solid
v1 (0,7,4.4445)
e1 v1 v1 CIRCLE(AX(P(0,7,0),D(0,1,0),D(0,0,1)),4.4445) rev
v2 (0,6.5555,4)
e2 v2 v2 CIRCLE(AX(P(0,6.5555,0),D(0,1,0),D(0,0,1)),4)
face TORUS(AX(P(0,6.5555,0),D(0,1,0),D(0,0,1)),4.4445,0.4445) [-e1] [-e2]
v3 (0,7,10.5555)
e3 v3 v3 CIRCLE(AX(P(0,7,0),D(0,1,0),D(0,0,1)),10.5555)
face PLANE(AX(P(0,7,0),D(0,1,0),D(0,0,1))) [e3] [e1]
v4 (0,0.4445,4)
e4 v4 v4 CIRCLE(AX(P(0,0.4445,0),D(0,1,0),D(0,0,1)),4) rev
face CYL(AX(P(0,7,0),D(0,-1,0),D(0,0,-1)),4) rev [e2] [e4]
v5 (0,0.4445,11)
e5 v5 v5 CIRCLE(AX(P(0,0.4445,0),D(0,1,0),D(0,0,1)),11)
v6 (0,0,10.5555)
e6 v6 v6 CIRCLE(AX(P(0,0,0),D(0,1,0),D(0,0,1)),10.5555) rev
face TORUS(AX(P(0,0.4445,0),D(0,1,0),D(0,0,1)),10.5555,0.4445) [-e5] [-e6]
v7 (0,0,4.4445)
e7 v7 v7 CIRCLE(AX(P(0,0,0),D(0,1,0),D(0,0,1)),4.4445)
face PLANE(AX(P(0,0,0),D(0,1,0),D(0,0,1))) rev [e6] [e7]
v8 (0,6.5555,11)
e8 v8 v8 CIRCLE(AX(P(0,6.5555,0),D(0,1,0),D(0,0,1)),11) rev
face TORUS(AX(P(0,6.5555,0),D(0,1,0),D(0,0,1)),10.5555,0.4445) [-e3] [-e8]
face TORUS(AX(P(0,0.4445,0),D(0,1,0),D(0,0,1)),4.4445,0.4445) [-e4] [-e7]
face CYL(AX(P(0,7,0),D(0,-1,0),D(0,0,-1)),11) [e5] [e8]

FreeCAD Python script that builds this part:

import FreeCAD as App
import Part
import Sketcher

V = App.Vector


def edges_at(feature, points):
    """Names of the edges that pass closest to the given points."""
    edges = feature.Shape.Edges
    near = lambda p: min(range(len(edges)), key=lambda i: edges[i].distToShape(Part.Vertex(*p))[0])
    return sorted({f"Edge{near(p) + 1}" for p in points})

doc = App.newDocument("Part")
body = doc.addObject("PartDesign::Body", "Body")

sketch1 = body.newObject("Sketcher::SketchObject", "Sketch")
sketch1.AttachmentSupport = (doc.getObject("XZ_Plane"), [""])
sketch1.MapMode = "FlatFace"
sketch1.addGeometry(Part.Circle(V(0, 0, 0), V(0, 0, 1), 11), False)
sketch1.addGeometry(Part.Circle(V(0, 0, 0), V(0, 0, 1), 4), False)
sketch1.addConstraint(Sketcher.Constraint("Coincident", 0, 3, -1, 1))
sketch1.addConstraint(Sketcher.Constraint("Coincident", 1, 3, -1, 1))
sketch1.addConstraint(Sketcher.Constraint("Diameter", 0, 22.0))
sketch1.addConstraint(Sketcher.Constraint("Diameter", 1, 8.0))
pad1 = body.newObject("PartDesign::Pad", "Pad")
pad1.Profile = sketch1
pad1.Length = 7
pad1.Reversed = True
doc.recompute()

fillet = body.newObject("PartDesign::Fillet", "Fillet")
fillet.Base = (pad1, edges_at(pad1, [
    (-11, 0, 0),
    (-11, 7, 0),
    (-4, 0, 0),
    (-4, 7, 0),
]))
fillet.Radius = 0.4445

doc.recompute()
